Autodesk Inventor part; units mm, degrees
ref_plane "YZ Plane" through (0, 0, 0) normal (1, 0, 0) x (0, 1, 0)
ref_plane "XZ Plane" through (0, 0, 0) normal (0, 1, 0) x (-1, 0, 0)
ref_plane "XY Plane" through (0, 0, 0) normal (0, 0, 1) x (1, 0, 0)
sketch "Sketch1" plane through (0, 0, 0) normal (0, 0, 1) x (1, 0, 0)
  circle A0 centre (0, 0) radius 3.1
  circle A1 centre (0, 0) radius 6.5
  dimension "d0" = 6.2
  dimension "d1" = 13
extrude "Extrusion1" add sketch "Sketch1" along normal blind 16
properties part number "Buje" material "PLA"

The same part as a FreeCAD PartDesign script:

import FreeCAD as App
import Part
import Sketcher

V = App.Vector
Q = App.Units.Quantity

doc = App.newDocument("Part")
body = doc.addObject("PartDesign::Body", "Body")

sketch1 = doc.addObject("Sketcher::SketchObject", "Sketch")
body.addObject(sketch1)
sketch1.AttachmentSupport = (doc.XY_Plane, [""])
sketch1.MapMode = "FlatFace"
sketch1.addGeometry([
    Part.Circle(V(0, 0, 0), V(0, 0, 1), 6.5),
    Part.Circle(V(0, 0, 0), V(0, 0, 1), 3.1),
], False)
sketch1.addConstraint([
    Sketcher.Constraint("Coincident", 0, 3, -1, 1),
    Sketcher.Constraint("Coincident", 1, 3, -1, 1),
    Sketcher.Constraint("Diameter", 0, Q("13 mm")),
    Sketcher.Constraint("Diameter", 1, Q("6.2 mm")),
])
pad1 = doc.addObject("PartDesign::Pad", "Pad")
body.addObject(pad1)
pad1.Profile = sketch1
pad1.Length = 16

doc.recompute()
